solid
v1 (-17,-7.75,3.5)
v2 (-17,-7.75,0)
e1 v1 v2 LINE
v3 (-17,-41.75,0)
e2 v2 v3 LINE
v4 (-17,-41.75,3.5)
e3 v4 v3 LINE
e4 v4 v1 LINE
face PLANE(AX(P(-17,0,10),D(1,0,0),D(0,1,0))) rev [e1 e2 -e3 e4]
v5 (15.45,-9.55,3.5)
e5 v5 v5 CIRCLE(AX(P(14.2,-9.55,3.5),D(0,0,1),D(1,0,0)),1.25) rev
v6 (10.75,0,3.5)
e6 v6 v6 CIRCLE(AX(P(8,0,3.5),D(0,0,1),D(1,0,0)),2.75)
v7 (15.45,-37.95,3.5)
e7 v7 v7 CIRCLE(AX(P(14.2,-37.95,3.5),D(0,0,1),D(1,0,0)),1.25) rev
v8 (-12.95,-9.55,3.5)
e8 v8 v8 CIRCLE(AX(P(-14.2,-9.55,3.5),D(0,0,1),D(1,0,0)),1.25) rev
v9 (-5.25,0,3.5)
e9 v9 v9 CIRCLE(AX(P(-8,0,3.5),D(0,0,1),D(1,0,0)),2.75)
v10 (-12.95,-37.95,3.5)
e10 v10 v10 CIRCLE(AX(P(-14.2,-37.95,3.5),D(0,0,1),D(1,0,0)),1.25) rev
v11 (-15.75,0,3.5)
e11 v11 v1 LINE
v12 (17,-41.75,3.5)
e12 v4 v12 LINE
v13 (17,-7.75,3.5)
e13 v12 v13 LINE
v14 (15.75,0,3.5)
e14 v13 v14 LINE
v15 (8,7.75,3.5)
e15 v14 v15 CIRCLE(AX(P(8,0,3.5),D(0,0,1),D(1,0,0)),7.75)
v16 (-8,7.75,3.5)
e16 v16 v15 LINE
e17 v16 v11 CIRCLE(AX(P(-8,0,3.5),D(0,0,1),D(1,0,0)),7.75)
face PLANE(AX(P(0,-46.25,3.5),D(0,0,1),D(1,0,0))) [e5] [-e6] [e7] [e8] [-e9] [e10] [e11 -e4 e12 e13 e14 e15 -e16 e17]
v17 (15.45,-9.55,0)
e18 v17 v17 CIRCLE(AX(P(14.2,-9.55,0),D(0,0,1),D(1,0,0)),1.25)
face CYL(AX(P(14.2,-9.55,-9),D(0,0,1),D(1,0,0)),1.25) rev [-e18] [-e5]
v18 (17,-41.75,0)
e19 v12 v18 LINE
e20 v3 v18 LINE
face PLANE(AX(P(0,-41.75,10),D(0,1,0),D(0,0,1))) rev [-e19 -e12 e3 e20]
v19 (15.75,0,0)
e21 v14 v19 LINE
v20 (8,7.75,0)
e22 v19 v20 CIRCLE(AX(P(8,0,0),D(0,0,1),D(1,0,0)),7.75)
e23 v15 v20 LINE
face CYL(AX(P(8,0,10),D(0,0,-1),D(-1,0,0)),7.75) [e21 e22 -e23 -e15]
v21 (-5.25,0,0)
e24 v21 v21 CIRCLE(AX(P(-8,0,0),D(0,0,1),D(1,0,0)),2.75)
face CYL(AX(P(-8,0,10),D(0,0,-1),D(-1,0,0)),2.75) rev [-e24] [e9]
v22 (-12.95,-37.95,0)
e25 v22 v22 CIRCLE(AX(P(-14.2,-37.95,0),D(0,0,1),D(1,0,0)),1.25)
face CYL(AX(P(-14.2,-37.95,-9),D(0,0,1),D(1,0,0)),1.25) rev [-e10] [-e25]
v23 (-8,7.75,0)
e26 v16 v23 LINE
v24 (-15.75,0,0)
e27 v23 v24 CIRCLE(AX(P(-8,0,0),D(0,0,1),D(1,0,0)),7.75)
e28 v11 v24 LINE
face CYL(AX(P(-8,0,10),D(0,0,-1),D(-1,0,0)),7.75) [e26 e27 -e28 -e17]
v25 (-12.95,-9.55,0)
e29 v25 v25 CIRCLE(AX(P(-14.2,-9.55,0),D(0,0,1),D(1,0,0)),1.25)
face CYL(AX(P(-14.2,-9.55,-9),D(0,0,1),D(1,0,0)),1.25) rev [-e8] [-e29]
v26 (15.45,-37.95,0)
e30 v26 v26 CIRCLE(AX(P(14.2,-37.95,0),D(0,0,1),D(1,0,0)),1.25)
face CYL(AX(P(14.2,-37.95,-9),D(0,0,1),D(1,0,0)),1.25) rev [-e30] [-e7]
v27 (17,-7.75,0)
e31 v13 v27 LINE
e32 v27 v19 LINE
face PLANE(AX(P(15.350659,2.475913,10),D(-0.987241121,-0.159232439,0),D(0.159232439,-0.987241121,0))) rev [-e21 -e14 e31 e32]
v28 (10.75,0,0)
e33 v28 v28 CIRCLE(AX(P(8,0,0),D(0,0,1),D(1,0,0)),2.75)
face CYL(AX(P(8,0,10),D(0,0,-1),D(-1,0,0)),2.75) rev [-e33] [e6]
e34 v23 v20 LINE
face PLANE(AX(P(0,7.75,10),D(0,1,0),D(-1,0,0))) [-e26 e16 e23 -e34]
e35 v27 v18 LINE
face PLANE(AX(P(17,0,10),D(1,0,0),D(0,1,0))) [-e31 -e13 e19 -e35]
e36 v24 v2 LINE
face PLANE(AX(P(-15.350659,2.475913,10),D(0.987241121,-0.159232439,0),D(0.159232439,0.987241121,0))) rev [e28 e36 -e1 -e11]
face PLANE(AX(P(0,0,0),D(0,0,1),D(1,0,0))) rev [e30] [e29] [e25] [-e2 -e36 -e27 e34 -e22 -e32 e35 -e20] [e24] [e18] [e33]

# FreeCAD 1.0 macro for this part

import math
import FreeCAD as App
import Part
import Sketcher
from FreeCAD import Vector


def add_polygon(sketch, points):
    """Adds a closed chain of lines whose ends are joined by coincident constraints."""
    first, n = sketch.GeometryCount, len(points)
    for a, b in zip(points, points[1:] + points[:1]):
        sketch.addGeometry(Part.LineSegment(App.Vector(*a, 0), App.Vector(*b, 0)), False)
    for i in range(n):
        sketch.addConstraint(Sketcher.Constraint("Coincident", first + i, 2, first + (i + 1) % n, 1))

doc = App.newDocument("Part")
body = doc.addObject("PartDesign::Body", "Body")

# Sketch on XY plane
sketch1 = body.newObject("Sketcher::SketchObject", "Sketch")
sketch1.AttachmentSupport = (doc.getObject("XY_Plane"), [""])
sketch1.MapMode = "FlatFace"
sketch1.addGeometry([
    Part.LineSegment(Vector(8, 7.8, 0), Vector(-8, 7.8, 0)),  # 0
    Part.ArcOfCircle(Part.Circle(Vector(-8, 0, 0), Vector(0, 0, 1), 7.8), math.radians(90), math.radians(270)),  # 1
    Part.LineSegment(Vector(-8, -7.8, 0), Vector(8, -7.8, 0)),  # 2
    Part.ArcOfCircle(Part.Circle(Vector(8, 0, 0), Vector(0, 0, 1), 7.8), math.radians(-90), math.radians(90)),  # 3
    Part.Circle(Vector(-8, 0, 0), Vector(0, 0, 1), 2.8),  # 4
    Part.Circle(Vector(8, 0, 0), Vector(0, 0, 1), 2.8),  # 5
], False)
sketch1.addConstraint([
    Sketcher.Constraint("Tangent", 0, 2, 1, 1),
    Sketcher.Constraint("Tangent", 1, 2, 2, 1),
    Sketcher.Constraint("Tangent", 2, 2, 3, 1),
    Sketcher.Constraint("Tangent", 3, 2, 0, 1),
    Sketcher.Constraint("Horizontal", 0),
    Sketcher.Constraint("Horizontal", 2),
    Sketcher.Constraint("Coincident", 4, 3, 1, 3),
    Sketcher.Constraint("Coincident", 5, 3, 3, 3),
    Sketcher.Constraint("Equal", 4, 5),
    Sketcher.Constraint("Symmetric", 1, 3, 3, 3, -1, 1),
    Sketcher.Constraint("Diameter", 4, 5.5),
    Sketcher.Constraint("DistanceX", 0, 2, 0, 1, 16.0),
    Sketcher.Constraint("Radius", 1, 7.75),
])
pad1 = body.newObject("PartDesign::Pad", "Pad")
pad1.Profile = sketch1
pad1.Length = 10

# Sketch on XY plane
sketch2 = body.newObject("Sketcher::SketchObject", "Sketch001")
sketch2.AttachmentSupport = (doc.getObject("XY_Plane"), [""])
sketch2.MapMode = "FlatFace"
sketch2.addGeometry([
    Part.LineSegment(Vector(-17, -7.8, 0), Vector(-17, -41.8, 0)),  # 0
    Part.LineSegment(Vector(-17, -41.8, 0), Vector(17, -41.8, 0)),  # 1
    Part.LineSegment(Vector(17, -41.8, 0), Vector(17, -7.8, 0)),  # 2
    Part.LineSegment(Vector(17, -7.8, 0), Vector(15.8, 0, 0)),  # 3
    Part.ArcOfCircle(Part.Circle(Vector(8, 0, 0), Vector(0, 0, 1), 7.8), math.radians(-90), math.radians(0)),  # 4
    Part.LineSegment(Vector(8, -7.8, 0), Vector(12.5, -7.8, 0)),  # 5
    Part.LineSegment(Vector(12.5, -7.8, 0), Vector(12.5, -37.2, 0)),  # 6
    Part.LineSegment(Vector(12.5, -37.2, 0), Vector(-12.5, -37.2, 0)),  # 7
    Part.LineSegment(Vector(-12.5, -37.2, 0), Vector(-12.5, -7.8, 0)),  # 8
    Part.LineSegment(Vector(-12.5, -7.8, 0), Vector(-8, -7.8, 0)),  # 9
    Part.ArcOfCircle(Part.Circle(Vector(-8, 0, 0), Vector(0, 0, 1), 7.8), math.radians(-180), math.radians(-90)),  # 10
    Part.LineSegment(Vector(-15.8, 0, 0), Vector(-17, -7.8, 0)),  # 11
], False)
sketch2.addConstraint([
    Sketcher.Constraint("Coincident", 0, 2, 1, 1),
    Sketcher.Constraint("Coincident", 1, 2, 2, 1),
    Sketcher.Constraint("Coincident", 2, 2, 3, 1),
    Sketcher.Constraint("Coincident", 3, 2, 4, 2),
    Sketcher.Constraint("Tangent", 4, 1, 5, 1),
    Sketcher.Constraint("Coincident", 5, 2, 6, 1),
    Sketcher.Constraint("Coincident", 6, 2, 7, 1),
    Sketcher.Constraint("Coincident", 7, 2, 8, 1),
    Sketcher.Constraint("Coincident", 8, 2, 9, 1),
    Sketcher.Constraint("Tangent", 9, 2, 10, 2),
    Sketcher.Constraint("Coincident", 10, 1, 11, 1),
    Sketcher.Constraint("Coincident", 11, 2, 0, 1),
    Sketcher.Constraint("Vertical", 0),
    Sketcher.Constraint("Horizontal", 1),
    Sketcher.Constraint("Vertical", 2),
    Sketcher.Constraint("Horizontal", 5),
    Sketcher.Constraint("Vertical", 6),
    Sketcher.Constraint("Horizontal", 7),
    Sketcher.Constraint("Vertical", 8),
    Sketcher.Constraint("Horizontal", 9),
    Sketcher.Constraint("Equal", 4, 10),
    Sketcher.Constraint("Symmetric", 4, 3, 10, 3, -1, 1),
    Sketcher.Constraint("Symmetric", 5, 2, 8, 2, -2),
    Sketcher.Constraint("Symmetric", 2, 2, 11, 2, -2),
    Sketcher.Constraint("PointOnObject", 3, 2, -1),
    Sketcher.Constraint("PointOnObject", 10, 1, -1),
    Sketcher.Constraint("Horizontal", 2, 2, 4, 1),
    Sketcher.Constraint("Equal", 1, 0),
    Sketcher.Constraint("DistanceX", 1, 1, 1, 2, 34.0),
    Sketcher.Constraint("DistanceX", 7, 2, 7, 1, 25.0),
    Sketcher.Constraint("Radius", 4, 7.75),
    Sketcher.Constraint("DistanceX", 5, 1, 5, 2, 4.5),
    Sketcher.Constraint("DistanceY", 6, 2, 6, 1, 29.5),
])
pad2 = body.newObject("PartDesign::Pad", "Pad001")
pad2.Profile = sketch2
pad2.Length = 10

# Sketch on XY plane
sketch3 = body.newObject("Sketcher::SketchObject", "Sketch002")
sketch3.AttachmentSupport = (doc.getObject("XY_Plane"), [""])
sketch3.MapMode = "FlatFace"
sketch3.AttachmentOffset = App.Placement(Vector(0, 0, 10), App.Rotation())
add_polygon(sketch3, [(-12.5, -5.8), (-12.5, -7.8), (12.5, -7.8), (12.5, -5.8)])  # lines 0-3
sketch3.addConstraint([
    Sketcher.Constraint("Vertical", 0),
    Sketcher.Constraint("Horizontal", 1),
    Sketcher.Constraint("Vertical", 2),
    Sketcher.Constraint("Horizontal", 3),
    Sketcher.Constraint("DistanceX", 1, 1, 1, 2, 25.0),
    Sketcher.Constraint("DistanceY", 0, 2, 0, 1, 2.0),
    Sketcher.Constraint("DistanceX", 0, 2, -1, 1, 12.5),
    Sketcher.Constraint("DistanceY", 0, 2, -1, 1, 7.75),
])
pad3 = body.newObject("PartDesign::Pad", "Pad002")
pad3.Profile = sketch3
pad3.Length = 2

# Sketch on XY plane
sketch4 = body.newObject("Sketcher::SketchObject", "Sketch003")
sketch4.AttachmentSupport = (doc.getObject("XY_Plane"), [""])
sketch4.MapMode = "FlatFace"
sketch4.AttachmentOffset = App.Placement(Vector(0, 0, 10), App.Rotation())
sketch4.addGeometry([
    Part.Circle(Vector(-14.2, -9.6, 0), Vector(0, 0, 1), 1.2),
    Part.Circle(Vector(14.2, -9.6, 0), Vector(0, 0, 1), 1.2),
    Part.Circle(Vector(14.2, -38, 0), Vector(0, 0, 1), 1.2),
    Part.Circle(Vector(-14.2, -38, 0), Vector(0, 0, 1), 1.2),
], False)
sketch4.addConstraint([
    Sketcher.Constraint("Equal", 0, 1),
    Sketcher.Constraint("Equal", 1, 2),
    Sketcher.Constraint("Equal", 2, 3),
    Sketcher.Constraint("Symmetric", 0, 3, 1, 3, -2),
    Sketcher.Constraint("Symmetric", 2, 3, 3, 3, -2),
    Sketcher.Constraint("Vertical", 1, 3, 2, 3),
    Sketcher.Constraint("Diameter", 0, 2.5),
    Sketcher.Constraint("DistanceX", 0, 3, -1, 1, 14.2),
    Sketcher.Constraint("DistanceY", 2, 3, 1, 3, 28.4),
    Sketcher.Constraint("DistanceY", 0, 3, -1, 1, 9.55),
])
pocket1 = body.newObject("PartDesign::Pocket", "Pocket")
pocket1.Profile = sketch4
pocket1.Length = 19

# Sketch on XY plane
sketch5 = body.newObject("Sketcher::SketchObject", "Sketch004")
sketch5.AttachmentSupport = (doc.getObject("XY_Plane"), [""])
sketch5.MapMode = "FlatFace"
add_polygon(sketch5, [(12, -8), (12, -37), (-12, -37), (-12, -8)])  # lines 0-3
sketch5.addConstraint([
    Sketcher.Constraint("Vertical", 0),
    Sketcher.Constraint("Horizontal", 1),
    Sketcher.Constraint("Vertical", 2),
    Sketcher.Constraint("Horizontal", 3),
    Sketcher.Constraint("DistanceX", 1, 2, 1, 1, 25.0),
    Sketcher.Constraint("DistanceY", 0, 2, 0, 1, 29.5),
    Sketcher.Constraint("DistanceX", -1, 1, 0, 2, 12.5),
    Sketcher.Constraint("DistanceY", 0, 2, -1, 1, 37.25),
])
pad4 = body.newObject("PartDesign::Pad", "Pad003")
pad4.Profile = sketch5
pad4.Length = 10

# Sketch on XZ plane
sketch6 = body.newObject("Sketcher::SketchObject", "Sketch005")
sketch6.AttachmentSupport = (doc.getObject("XZ_Plane"), [""])
sketch6.MapMode = "FlatFace"
sketch6.AttachmentOffset = App.Placement(Vector(0, 0, -7.75), App.Rotation())
add_polygon(sketch6, [(-17, 4), (-17, 13), (17, 13), (17, 4)])  # lines 0-3
sketch6.addConstraint([
    Sketcher.Constraint("Vertical", 0),
    Sketcher.Constraint("Horizontal", 1),
    Sketcher.Constraint("Vertical", 2),
    Sketcher.Constraint("Horizontal", 3),
    Sketcher.Constraint("DistanceX", 1, 1, 1, 2, 34.0),
    Sketcher.Constraint("DistanceX", 0, 2, -1, 1, 17.0),
    Sketcher.Constraint("DistanceY", -1, 1, 2, 2, 3.5),
    Sketcher.Constraint("DistanceY", 0, 1, 0, 2, 9.803899),
])
pocket2 = body.newObject("PartDesign::Pocket", "Pocket001")
pocket2.Profile = sketch6
pocket2.Length = 54
pocket2.Reversed = True

doc.recompute()
